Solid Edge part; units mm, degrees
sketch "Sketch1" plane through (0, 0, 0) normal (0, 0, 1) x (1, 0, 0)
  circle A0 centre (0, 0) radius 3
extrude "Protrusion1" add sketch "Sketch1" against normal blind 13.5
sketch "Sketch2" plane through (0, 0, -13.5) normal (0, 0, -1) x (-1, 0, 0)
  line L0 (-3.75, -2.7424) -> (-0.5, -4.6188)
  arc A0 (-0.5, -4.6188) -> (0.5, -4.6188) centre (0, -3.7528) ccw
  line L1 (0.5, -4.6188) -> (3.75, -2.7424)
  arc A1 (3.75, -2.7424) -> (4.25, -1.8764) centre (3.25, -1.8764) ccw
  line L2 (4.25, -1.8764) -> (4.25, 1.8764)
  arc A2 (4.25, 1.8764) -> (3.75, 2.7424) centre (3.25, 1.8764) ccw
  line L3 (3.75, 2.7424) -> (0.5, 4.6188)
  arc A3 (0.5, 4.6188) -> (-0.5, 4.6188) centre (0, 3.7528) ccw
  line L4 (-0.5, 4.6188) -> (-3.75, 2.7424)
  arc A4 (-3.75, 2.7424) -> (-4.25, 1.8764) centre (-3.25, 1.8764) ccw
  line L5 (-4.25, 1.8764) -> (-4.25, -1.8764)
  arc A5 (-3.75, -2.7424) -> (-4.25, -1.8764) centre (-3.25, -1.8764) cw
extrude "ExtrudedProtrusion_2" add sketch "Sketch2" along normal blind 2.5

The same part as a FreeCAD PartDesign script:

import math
import FreeCAD as App
import Part
import Sketcher
Q = App.Units.Quantity

doc = App.newDocument("Part")
body = doc.addObject("PartDesign::Body", "Body")

# Sketch on XY plane
sketch1 = body.newObject("Sketcher::SketchObject", "Sketch")
sketch1.AttachmentSupport = (doc.getObject("XY_Plane"), [""])
sketch1.MapMode = "FlatFace"
sketch1.addGeometry(Part.Circle(App.Vector(0, 0, 0), App.Vector(0, 0, 1), 3), False)
sketch1.addConstraint([
    Sketcher.Constraint("Coincident", 0, 3, -1, 1),
    Sketcher.Constraint("Diameter", 0, Q("6 mm")),
])
pad1 = body.newObject("PartDesign::Pad", "Pad")
pad1.Profile = sketch1
pad1.Length = 13.5
pad1.Reversed = True

# Sketch on XY plane
sketch2 = body.newObject("Sketcher::SketchObject", "Sketch001")
sketch2.AttachmentSupport = (doc.getObject("XY_Plane"), [""])
sketch2.MapMode = "FlatFace"
sketch2.AttachmentOffset = App.Placement(App.Vector(0, 0, -13.5), App.Rotation())
sketch2.addGeometry([
    Part.ArcOfCircle(Part.Circle(App.Vector(3.2, -1.9, 0), App.Vector(0, 0, 1), 1), math.radians(-60), math.radians(0)),  # 0
    Part.LineSegment(App.Vector(3.8, -2.7, 0), App.Vector(0.5, -4.6, 0)),  # 1
    Part.ArcOfCircle(Part.Circle(App.Vector(0, -3.8, 0), App.Vector(0, 0, 1), 1), math.radians(-120), math.radians(-60)),  # 2
    Part.LineSegment(App.Vector(-0.5, -4.6, 0), App.Vector(-3.8, -2.7, 0)),  # 3
    Part.ArcOfCircle(Part.Circle(App.Vector(-3.2, -1.9, 0), App.Vector(0, 0, 1), 1), math.radians(180), math.radians(240)),  # 4
    Part.LineSegment(App.Vector(-4.2, -1.9, 0), App.Vector(-4.2, 1.9, 0)),  # 5
    Part.ArcOfCircle(Part.Circle(App.Vector(-3.2, 1.9, 0), App.Vector(0, 0, 1), 1), math.radians(120), math.radians(180)),  # 6
    Part.LineSegment(App.Vector(-3.8, 2.7, 0), App.Vector(-0.5, 4.6, 0)),  # 7
    Part.ArcOfCircle(Part.Circle(App.Vector(0, 3.8, 0), App.Vector(0, 0, 1), 1), math.radians(60), math.radians(120)),  # 8
    Part.LineSegment(App.Vector(0.5, 4.6, 0), App.Vector(3.8, 2.7, 0)),  # 9
    Part.ArcOfCircle(Part.Circle(App.Vector(3.2, 1.9, 0), App.Vector(0, 0, 1), 1), math.radians(0), math.radians(60)),  # 10
    Part.LineSegment(App.Vector(4.2, 1.9, 0), App.Vector(4.2, -1.9, 0)),  # 11
], False)
sketch2.addConstraint([
    Sketcher.Constraint("Tangent", 0, 1, 1, 1),
    Sketcher.Constraint("Tangent", 1, 2, 2, 2),
    Sketcher.Constraint("Tangent", 2, 1, 3, 1),
    Sketcher.Constraint("Tangent", 3, 2, 4, 2),
    Sketcher.Constraint("Tangent", 4, 1, 5, 1),
    Sketcher.Constraint("Tangent", 5, 2, 6, 2),
    Sketcher.Constraint("Tangent", 6, 1, 7, 1),
    Sketcher.Constraint("Tangent", 7, 2, 8, 2),
    Sketcher.Constraint("Tangent", 8, 1, 9, 1),
    Sketcher.Constraint("Tangent", 9, 2, 10, 2),
    Sketcher.Constraint("Tangent", 10, 1, 11, 1),
    Sketcher.Constraint("Tangent", 11, 2, 0, 2),
    Sketcher.Constraint("Vertical", 5),
    Sketcher.Constraint("Vertical", 11),
    Sketcher.Constraint("Equal", 0, 2),
    Sketcher.Constraint("Equal", 2, 4),
    Sketcher.Constraint("Equal", 4, 6),
    Sketcher.Constraint("Equal", 6, 8),
    Sketcher.Constraint("Equal", 8, 10),
    Sketcher.Constraint("Symmetric", 0, 3, 6, 3, -1, 1),
    Sketcher.Constraint("Symmetric", 2, 3, 8, 3, -1, 1),
    Sketcher.Constraint("Symmetric", 1, 2, 2, 1, -2),
    Sketcher.Constraint("Parallel", 3, 9),
    Sketcher.Constraint("Radius", 0, Q("1 mm")),
    Sketcher.Constraint("Angle", 1, Q("-149.9998 deg")),
    Sketcher.Constraint("DistanceX", 4, 3, 0, 1, Q("7 mm")),
    Sketcher.Constraint("DistanceY", 5, 1, 5, 2, Q("3.7528 mm")),
])
pad2 = body.newObject("PartDesign::Pad", "Pad001")
pad2.Profile = sketch2
pad2.Length = 2.5
pad2.Reversed = True

doc.recompute()
